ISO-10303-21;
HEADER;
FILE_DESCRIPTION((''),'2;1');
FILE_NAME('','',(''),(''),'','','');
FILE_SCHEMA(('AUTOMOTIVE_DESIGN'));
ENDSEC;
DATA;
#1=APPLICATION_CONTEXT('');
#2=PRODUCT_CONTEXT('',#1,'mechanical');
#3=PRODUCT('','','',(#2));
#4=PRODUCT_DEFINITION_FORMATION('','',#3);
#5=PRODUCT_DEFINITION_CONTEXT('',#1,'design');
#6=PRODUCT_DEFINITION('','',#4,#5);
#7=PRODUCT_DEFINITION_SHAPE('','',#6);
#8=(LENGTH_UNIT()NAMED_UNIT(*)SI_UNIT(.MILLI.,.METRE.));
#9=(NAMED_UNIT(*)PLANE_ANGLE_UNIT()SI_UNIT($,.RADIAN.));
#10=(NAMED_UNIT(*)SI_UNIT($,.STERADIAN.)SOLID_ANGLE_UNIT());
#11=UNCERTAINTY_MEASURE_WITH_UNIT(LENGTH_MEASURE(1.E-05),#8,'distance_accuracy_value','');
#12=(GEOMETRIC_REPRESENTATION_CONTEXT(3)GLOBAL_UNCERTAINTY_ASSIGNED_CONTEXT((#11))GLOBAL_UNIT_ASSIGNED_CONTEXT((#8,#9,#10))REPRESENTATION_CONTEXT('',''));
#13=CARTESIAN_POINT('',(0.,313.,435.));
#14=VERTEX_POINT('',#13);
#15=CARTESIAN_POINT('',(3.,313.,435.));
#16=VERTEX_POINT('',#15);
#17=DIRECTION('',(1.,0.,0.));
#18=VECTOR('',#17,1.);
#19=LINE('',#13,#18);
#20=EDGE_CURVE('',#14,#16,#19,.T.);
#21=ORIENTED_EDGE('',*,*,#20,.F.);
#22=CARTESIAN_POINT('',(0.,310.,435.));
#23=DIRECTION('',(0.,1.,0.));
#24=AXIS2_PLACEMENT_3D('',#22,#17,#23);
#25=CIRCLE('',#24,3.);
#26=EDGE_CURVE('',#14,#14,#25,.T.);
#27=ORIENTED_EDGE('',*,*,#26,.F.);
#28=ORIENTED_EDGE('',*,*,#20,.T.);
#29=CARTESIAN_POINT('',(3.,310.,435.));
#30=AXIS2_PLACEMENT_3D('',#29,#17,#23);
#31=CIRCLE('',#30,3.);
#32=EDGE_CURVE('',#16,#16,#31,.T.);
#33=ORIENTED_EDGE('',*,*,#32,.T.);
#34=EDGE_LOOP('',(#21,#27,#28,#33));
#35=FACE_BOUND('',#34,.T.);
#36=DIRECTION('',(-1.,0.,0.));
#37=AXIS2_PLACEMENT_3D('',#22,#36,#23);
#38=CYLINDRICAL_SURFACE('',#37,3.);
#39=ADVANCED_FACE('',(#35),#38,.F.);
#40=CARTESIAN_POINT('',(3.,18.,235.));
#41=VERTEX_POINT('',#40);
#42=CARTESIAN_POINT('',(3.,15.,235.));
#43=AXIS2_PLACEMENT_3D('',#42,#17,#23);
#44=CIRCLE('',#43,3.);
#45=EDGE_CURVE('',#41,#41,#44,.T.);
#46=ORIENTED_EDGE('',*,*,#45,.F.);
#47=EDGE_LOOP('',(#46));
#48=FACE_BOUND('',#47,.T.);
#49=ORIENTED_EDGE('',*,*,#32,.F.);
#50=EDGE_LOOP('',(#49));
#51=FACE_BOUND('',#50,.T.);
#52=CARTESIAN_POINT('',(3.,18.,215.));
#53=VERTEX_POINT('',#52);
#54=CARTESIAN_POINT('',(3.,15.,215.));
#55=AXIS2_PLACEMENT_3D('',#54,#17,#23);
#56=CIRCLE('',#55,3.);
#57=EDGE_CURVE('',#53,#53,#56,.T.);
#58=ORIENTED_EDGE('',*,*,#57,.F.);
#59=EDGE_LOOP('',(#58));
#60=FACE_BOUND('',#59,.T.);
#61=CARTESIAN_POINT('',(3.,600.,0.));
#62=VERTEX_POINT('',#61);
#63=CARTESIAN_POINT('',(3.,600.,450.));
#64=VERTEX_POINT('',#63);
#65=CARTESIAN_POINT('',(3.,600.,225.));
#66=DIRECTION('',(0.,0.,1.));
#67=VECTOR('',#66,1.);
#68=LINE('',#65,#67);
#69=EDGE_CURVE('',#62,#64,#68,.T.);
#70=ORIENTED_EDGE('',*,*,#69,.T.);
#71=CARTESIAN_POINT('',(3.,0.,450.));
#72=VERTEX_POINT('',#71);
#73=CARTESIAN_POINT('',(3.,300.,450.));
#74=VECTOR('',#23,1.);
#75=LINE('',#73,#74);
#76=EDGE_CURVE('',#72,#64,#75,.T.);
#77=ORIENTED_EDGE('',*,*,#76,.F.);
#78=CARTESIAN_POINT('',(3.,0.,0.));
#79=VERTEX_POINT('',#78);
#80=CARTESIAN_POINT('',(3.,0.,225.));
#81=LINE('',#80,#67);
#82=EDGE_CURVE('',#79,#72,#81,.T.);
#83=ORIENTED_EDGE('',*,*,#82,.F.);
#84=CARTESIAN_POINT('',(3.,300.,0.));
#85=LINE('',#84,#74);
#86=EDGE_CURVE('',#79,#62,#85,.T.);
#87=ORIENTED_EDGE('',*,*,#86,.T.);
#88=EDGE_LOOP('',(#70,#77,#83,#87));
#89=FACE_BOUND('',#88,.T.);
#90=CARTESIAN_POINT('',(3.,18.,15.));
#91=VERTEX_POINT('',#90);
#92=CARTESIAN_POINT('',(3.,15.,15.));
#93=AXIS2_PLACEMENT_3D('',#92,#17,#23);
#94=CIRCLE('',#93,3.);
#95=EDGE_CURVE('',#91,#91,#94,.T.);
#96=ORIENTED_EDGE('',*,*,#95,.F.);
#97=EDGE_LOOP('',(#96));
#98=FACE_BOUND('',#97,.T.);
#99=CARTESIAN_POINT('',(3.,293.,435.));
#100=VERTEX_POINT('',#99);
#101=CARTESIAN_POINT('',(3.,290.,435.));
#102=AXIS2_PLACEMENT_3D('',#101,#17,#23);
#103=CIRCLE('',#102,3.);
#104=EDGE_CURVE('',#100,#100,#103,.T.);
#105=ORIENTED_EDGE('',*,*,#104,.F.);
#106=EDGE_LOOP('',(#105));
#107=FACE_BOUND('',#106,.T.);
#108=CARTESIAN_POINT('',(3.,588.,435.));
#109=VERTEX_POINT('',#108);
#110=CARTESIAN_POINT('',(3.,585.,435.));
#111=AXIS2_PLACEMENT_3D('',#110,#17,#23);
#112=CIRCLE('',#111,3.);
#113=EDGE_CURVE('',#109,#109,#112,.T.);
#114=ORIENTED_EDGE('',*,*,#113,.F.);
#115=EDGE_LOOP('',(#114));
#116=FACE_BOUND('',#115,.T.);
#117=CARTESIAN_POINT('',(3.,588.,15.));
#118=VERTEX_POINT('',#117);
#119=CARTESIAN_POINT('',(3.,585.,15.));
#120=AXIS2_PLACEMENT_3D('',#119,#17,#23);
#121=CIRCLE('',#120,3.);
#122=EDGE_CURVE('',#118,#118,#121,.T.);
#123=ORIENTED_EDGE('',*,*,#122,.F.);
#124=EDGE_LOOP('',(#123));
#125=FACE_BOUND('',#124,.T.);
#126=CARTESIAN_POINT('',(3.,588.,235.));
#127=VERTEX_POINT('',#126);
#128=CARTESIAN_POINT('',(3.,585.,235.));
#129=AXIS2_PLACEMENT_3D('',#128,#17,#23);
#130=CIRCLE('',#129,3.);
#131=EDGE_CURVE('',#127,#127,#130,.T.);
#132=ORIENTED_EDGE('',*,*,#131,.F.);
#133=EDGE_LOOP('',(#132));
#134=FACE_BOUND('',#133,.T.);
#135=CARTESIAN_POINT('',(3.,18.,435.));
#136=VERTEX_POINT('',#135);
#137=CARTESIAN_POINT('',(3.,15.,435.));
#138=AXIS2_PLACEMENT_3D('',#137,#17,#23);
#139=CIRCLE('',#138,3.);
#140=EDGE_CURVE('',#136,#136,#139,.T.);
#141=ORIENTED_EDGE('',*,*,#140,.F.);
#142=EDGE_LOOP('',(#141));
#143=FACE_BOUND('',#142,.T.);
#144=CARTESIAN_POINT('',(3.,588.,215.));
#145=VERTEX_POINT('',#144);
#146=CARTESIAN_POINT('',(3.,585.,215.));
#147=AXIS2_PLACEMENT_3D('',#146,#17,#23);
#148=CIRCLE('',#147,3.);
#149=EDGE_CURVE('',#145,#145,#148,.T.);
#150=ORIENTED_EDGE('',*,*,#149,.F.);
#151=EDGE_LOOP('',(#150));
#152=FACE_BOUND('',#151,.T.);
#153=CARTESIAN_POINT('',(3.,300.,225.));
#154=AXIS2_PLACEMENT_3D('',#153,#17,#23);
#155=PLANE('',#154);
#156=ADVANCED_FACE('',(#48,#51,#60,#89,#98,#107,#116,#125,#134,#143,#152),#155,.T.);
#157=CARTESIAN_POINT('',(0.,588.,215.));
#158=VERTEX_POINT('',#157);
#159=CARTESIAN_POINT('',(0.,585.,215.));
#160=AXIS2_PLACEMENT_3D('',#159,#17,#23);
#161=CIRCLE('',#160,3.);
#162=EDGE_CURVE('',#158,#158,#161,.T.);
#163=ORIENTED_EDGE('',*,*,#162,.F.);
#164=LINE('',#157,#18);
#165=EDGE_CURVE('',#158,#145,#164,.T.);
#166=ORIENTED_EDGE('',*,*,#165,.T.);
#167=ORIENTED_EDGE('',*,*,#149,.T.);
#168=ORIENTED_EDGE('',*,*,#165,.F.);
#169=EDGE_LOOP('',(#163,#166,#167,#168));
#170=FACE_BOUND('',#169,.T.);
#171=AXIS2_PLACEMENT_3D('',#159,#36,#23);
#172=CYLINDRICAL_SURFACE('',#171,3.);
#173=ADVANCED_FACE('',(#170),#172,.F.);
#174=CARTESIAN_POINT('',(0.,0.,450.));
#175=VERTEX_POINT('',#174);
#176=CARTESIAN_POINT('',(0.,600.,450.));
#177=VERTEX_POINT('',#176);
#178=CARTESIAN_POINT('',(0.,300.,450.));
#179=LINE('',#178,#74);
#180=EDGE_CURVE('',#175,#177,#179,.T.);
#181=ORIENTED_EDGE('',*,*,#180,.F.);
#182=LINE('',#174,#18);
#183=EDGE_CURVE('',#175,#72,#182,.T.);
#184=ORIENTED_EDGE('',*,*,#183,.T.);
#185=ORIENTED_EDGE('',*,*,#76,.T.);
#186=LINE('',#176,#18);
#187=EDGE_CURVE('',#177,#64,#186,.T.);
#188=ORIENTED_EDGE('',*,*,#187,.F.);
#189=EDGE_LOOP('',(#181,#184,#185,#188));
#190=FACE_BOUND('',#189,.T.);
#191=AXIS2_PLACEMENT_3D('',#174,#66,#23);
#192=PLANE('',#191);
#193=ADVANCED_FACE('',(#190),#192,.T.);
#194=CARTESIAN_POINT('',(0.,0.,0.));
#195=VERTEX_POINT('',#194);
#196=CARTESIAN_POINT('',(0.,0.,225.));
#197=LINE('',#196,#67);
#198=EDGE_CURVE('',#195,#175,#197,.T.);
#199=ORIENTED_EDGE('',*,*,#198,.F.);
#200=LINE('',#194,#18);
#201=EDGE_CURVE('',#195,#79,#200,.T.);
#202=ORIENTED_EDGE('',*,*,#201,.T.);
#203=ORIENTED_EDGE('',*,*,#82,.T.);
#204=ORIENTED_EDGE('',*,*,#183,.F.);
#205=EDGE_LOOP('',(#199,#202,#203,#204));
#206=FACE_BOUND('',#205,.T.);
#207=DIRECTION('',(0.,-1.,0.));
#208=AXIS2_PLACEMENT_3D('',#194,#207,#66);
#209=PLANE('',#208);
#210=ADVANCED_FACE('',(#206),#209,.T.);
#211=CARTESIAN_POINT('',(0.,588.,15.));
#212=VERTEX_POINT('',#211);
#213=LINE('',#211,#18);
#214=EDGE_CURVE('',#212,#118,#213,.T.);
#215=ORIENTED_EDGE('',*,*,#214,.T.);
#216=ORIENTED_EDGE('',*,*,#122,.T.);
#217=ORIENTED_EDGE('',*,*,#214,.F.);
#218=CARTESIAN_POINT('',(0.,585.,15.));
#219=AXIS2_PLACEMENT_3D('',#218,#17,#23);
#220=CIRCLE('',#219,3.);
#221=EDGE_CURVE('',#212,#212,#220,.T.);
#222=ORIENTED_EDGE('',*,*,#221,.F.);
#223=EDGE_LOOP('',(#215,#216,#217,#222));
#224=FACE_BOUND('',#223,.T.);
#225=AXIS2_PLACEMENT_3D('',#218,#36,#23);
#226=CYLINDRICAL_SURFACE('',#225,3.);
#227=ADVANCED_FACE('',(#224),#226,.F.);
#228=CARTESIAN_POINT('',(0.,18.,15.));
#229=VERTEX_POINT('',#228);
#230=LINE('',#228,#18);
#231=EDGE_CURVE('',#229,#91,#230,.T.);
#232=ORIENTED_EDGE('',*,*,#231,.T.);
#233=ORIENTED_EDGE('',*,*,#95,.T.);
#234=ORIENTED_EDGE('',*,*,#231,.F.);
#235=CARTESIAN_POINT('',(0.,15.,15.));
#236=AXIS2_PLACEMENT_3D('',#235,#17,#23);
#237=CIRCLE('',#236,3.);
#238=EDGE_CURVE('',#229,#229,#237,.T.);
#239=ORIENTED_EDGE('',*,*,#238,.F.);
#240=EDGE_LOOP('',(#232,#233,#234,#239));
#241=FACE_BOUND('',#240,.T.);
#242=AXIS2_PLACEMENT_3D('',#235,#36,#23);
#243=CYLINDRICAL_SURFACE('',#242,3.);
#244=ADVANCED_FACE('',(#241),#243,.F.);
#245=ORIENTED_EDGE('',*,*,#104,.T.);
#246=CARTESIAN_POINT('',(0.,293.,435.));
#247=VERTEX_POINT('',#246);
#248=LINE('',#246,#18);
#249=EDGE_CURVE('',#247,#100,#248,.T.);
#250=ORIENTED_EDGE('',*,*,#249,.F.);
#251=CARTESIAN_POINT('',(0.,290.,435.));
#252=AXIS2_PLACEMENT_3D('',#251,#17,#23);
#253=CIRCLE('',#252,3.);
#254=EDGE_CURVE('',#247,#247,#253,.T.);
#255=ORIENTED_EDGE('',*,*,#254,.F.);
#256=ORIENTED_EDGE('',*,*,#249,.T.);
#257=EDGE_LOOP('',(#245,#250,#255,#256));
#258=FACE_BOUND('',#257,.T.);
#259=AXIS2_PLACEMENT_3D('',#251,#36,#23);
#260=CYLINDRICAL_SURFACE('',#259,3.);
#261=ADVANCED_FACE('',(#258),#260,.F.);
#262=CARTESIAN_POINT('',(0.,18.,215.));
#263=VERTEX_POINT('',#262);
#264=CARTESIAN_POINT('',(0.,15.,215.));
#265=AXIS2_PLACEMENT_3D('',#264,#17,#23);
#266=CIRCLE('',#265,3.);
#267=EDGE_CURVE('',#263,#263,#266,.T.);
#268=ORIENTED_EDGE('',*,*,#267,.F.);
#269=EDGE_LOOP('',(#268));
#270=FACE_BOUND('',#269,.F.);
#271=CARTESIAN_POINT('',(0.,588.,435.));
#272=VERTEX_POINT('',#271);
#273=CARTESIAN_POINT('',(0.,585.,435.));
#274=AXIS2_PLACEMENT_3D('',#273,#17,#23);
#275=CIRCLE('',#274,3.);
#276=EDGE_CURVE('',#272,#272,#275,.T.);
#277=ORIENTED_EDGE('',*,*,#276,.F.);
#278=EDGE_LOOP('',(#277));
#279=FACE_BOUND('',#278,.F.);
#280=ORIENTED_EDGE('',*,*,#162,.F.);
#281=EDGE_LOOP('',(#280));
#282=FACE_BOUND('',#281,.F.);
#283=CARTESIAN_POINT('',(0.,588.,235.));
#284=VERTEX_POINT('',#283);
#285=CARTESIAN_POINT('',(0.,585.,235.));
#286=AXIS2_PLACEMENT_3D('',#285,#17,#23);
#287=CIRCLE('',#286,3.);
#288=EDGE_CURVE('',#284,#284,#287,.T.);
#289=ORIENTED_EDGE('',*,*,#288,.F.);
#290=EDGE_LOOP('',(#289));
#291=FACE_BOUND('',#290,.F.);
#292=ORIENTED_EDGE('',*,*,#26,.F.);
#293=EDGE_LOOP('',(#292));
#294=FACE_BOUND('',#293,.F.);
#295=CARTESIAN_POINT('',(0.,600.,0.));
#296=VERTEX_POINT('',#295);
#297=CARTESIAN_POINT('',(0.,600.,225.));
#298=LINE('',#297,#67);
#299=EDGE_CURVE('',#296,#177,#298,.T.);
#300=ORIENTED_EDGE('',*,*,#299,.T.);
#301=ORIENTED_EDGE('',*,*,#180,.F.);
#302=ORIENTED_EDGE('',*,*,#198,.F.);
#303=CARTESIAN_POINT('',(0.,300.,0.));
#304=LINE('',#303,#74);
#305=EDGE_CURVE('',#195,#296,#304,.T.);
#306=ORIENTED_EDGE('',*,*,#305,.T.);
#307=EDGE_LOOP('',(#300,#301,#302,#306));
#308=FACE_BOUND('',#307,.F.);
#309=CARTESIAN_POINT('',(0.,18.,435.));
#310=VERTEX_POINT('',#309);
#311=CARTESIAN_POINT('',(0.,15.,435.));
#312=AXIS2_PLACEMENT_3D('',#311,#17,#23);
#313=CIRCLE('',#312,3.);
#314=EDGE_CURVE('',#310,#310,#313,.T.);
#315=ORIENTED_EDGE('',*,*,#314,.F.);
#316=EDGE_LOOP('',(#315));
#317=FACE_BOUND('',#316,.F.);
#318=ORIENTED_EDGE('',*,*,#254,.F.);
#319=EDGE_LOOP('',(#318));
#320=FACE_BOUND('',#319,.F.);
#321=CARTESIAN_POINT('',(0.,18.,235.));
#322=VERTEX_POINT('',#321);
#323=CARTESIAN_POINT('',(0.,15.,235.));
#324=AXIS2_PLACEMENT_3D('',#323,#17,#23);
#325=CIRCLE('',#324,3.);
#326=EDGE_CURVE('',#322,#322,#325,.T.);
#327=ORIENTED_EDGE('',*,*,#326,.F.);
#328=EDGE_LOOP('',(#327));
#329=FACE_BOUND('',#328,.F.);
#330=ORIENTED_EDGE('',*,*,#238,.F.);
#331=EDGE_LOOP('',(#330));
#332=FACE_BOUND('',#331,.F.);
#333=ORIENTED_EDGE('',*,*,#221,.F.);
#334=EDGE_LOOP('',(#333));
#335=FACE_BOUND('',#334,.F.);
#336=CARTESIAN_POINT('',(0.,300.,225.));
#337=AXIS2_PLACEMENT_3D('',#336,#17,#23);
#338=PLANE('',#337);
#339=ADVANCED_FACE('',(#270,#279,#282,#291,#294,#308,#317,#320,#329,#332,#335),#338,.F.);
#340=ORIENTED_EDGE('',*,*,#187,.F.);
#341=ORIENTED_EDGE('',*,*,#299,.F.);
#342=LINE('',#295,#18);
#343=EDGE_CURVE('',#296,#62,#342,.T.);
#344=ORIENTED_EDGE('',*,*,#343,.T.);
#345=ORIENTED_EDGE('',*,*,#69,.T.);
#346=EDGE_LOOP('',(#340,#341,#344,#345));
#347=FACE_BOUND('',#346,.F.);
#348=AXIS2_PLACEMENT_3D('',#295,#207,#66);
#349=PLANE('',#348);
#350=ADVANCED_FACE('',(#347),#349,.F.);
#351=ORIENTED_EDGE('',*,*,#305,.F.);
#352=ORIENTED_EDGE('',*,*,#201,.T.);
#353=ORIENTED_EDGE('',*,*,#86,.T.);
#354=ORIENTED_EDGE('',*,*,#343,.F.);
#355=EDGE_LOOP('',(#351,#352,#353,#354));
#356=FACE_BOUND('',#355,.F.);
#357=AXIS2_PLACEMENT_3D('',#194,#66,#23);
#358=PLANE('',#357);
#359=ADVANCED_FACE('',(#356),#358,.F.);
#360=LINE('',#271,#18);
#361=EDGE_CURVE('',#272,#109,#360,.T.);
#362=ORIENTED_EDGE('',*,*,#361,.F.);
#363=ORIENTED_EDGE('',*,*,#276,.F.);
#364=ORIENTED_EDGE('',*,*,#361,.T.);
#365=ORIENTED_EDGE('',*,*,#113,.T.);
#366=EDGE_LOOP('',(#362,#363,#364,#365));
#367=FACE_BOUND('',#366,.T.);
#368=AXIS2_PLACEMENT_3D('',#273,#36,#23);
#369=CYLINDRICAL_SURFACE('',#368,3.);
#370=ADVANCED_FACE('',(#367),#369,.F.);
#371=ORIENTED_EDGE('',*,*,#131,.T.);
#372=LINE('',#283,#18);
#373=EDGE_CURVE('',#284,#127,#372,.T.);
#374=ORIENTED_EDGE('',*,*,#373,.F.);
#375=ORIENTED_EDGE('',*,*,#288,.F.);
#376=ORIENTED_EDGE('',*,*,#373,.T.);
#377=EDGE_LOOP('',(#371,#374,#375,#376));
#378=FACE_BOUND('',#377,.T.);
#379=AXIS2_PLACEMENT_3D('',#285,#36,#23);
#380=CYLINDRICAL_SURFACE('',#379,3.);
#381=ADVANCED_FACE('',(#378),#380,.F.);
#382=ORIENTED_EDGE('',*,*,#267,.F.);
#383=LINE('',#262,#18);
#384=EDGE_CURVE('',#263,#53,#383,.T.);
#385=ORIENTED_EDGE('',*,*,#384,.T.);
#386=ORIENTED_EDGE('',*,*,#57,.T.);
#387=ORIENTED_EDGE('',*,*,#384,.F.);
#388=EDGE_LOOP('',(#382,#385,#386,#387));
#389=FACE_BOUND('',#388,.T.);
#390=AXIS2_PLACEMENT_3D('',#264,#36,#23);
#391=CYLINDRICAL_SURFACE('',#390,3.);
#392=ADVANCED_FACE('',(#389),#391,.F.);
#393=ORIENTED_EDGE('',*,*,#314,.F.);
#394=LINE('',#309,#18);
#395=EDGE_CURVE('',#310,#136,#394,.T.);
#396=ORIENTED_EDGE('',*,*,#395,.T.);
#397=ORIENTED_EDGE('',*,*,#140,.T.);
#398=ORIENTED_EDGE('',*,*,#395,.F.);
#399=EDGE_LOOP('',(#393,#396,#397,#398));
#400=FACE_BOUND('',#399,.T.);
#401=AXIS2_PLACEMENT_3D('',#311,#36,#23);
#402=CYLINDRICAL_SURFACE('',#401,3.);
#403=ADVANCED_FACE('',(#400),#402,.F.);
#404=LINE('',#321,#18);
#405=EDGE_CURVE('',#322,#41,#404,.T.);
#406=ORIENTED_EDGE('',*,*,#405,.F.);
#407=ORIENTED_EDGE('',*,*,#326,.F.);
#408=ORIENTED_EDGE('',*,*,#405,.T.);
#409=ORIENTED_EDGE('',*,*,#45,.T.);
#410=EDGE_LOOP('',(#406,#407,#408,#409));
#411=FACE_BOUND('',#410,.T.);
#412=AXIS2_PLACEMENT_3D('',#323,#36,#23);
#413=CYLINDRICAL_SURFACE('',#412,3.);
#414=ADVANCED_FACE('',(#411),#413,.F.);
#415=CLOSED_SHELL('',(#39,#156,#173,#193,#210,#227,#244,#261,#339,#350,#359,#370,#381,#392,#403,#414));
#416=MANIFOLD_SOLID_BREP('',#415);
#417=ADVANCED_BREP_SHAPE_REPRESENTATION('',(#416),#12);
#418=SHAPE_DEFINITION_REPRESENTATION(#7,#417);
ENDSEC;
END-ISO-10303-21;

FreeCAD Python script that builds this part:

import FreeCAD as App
import Part
import Sketcher

V = App.Vector

doc = App.newDocument("Part")
body = doc.addObject("PartDesign::Body", "Body")

sketch1 = body.newObject("Sketcher::SketchObject", "Sketch")
sketch1.AttachmentSupport = (doc.getObject("YZ_Plane"), [""])
sketch1.MapMode = "FlatFace"
sketch1.addGeometry([
    Part.LineSegment(V(0, 450, 0), V(0, 0, 0)),
    Part.LineSegment(V(0, 0, 0), V(600, 0, 0)),
    Part.LineSegment(V(600, 0, 0), V(600, 450, 0)),
    Part.LineSegment(V(600, 450, 0), V(0, 450, 0)),
    Part.Circle(V(15, 15, 0), V(0, 0, 1), 3),
    Part.Circle(V(15, 215, 0), V(0, 0, 1), 3),
    Part.Circle(V(585, 15, 0), V(0, 0, 1), 3),
    Part.Circle(V(585, 215, 0), V(0, 0, 1), 3),
    Part.Circle(V(15, 235, 0), V(0, 0, 1), 3),
    Part.Circle(V(15, 435, 0), V(0, 0, 1), 3),
    Part.Circle(V(290, 435, 0), V(0, 0, 1), 3),
    Part.Circle(V(585, 235, 0), V(0, 0, 1), 3),
    Part.Circle(V(310, 435, 0), V(0, 0, 1), 3),
    Part.Circle(V(585, 435, 0), V(0, 0, 1), 3),
], False)
sketch1.addConstraint([
    Sketcher.Constraint("Coincident", 0, 2, 1, 1),
    Sketcher.Constraint("Coincident", 1, 2, 2, 1),
    Sketcher.Constraint("Coincident", 2, 2, 3, 1),
    Sketcher.Constraint("Coincident", 3, 2, 0, 1),
    Sketcher.Constraint("Vertical", 0),
    Sketcher.Constraint("Horizontal", 1),
    Sketcher.Constraint("Vertical", 2),
    Sketcher.Constraint("Horizontal", 3),
    Sketcher.Constraint("Coincident", 0, 2, -1, 1),
    Sketcher.Constraint("Equal", 4, 5),
    Sketcher.Constraint("Equal", 5, 6),
    Sketcher.Constraint("Equal", 6, 7),
    Sketcher.Constraint("Equal", 7, 8),
    Sketcher.Constraint("Equal", 8, 9),
    Sketcher.Constraint("Equal", 9, 10),
    Sketcher.Constraint("Equal", 10, 11),
    Sketcher.Constraint("Equal", 11, 12),
    Sketcher.Constraint("Equal", 12, 13),
    Sketcher.Constraint("Horizontal", 4, 3, 6, 3),
    Sketcher.Constraint("Horizontal", 5, 3, 7, 3),
    Sketcher.Constraint("Horizontal", 9, 3, 10, 3),
    Sketcher.Constraint("Horizontal", 8, 3, 11, 3),
    Sketcher.Constraint("Horizontal", 10, 3, 12, 3),
    Sketcher.Constraint("Horizontal", 12, 3, 13, 3),
    Sketcher.Constraint("Vertical", 4, 3, 5, 3),
    Sketcher.Constraint("Vertical", 6, 3, 7, 3),
    Sketcher.Constraint("Vertical", 5, 3, 8, 3),
    Sketcher.Constraint("Vertical", 8, 3, 9, 3),
    Sketcher.Constraint("Vertical", 7, 3, 11, 3),
    Sketcher.Constraint("Vertical", 11, 3, 13, 3),
    Sketcher.Constraint("Diameter", 4, 6.0),
    Sketcher.Constraint("DistanceX", 1, 1, 1, 2, 600.0),
    Sketcher.Constraint("DistanceY", 0, 2, 0, 1, 450.0),
    Sketcher.Constraint("DistanceX", -1, 1, 4, 3, 15.0),
    Sketcher.Constraint("DistanceY", -1, 1, 4, 3, 15.0),
    Sketcher.Constraint("DistanceY", -1, 1, 5, 3, 215.0),
    Sketcher.Constraint("DistanceX", -1, 1, 6, 3, 585.0),
    Sketcher.Constraint("DistanceY", -1, 1, 8, 3, 235.0),
    Sketcher.Constraint("DistanceY", -1, 1, 9, 3, 435.0),
    Sketcher.Constraint("DistanceX", -1, 1, 10, 3, 290.0),
    Sketcher.Constraint("DistanceX", -1, 1, 12, 3, 310.0),
])
pad1 = body.newObject("PartDesign::Pad", "Pad")
pad1.Profile = sketch1
pad1.Length = 3

doc.recompute()
